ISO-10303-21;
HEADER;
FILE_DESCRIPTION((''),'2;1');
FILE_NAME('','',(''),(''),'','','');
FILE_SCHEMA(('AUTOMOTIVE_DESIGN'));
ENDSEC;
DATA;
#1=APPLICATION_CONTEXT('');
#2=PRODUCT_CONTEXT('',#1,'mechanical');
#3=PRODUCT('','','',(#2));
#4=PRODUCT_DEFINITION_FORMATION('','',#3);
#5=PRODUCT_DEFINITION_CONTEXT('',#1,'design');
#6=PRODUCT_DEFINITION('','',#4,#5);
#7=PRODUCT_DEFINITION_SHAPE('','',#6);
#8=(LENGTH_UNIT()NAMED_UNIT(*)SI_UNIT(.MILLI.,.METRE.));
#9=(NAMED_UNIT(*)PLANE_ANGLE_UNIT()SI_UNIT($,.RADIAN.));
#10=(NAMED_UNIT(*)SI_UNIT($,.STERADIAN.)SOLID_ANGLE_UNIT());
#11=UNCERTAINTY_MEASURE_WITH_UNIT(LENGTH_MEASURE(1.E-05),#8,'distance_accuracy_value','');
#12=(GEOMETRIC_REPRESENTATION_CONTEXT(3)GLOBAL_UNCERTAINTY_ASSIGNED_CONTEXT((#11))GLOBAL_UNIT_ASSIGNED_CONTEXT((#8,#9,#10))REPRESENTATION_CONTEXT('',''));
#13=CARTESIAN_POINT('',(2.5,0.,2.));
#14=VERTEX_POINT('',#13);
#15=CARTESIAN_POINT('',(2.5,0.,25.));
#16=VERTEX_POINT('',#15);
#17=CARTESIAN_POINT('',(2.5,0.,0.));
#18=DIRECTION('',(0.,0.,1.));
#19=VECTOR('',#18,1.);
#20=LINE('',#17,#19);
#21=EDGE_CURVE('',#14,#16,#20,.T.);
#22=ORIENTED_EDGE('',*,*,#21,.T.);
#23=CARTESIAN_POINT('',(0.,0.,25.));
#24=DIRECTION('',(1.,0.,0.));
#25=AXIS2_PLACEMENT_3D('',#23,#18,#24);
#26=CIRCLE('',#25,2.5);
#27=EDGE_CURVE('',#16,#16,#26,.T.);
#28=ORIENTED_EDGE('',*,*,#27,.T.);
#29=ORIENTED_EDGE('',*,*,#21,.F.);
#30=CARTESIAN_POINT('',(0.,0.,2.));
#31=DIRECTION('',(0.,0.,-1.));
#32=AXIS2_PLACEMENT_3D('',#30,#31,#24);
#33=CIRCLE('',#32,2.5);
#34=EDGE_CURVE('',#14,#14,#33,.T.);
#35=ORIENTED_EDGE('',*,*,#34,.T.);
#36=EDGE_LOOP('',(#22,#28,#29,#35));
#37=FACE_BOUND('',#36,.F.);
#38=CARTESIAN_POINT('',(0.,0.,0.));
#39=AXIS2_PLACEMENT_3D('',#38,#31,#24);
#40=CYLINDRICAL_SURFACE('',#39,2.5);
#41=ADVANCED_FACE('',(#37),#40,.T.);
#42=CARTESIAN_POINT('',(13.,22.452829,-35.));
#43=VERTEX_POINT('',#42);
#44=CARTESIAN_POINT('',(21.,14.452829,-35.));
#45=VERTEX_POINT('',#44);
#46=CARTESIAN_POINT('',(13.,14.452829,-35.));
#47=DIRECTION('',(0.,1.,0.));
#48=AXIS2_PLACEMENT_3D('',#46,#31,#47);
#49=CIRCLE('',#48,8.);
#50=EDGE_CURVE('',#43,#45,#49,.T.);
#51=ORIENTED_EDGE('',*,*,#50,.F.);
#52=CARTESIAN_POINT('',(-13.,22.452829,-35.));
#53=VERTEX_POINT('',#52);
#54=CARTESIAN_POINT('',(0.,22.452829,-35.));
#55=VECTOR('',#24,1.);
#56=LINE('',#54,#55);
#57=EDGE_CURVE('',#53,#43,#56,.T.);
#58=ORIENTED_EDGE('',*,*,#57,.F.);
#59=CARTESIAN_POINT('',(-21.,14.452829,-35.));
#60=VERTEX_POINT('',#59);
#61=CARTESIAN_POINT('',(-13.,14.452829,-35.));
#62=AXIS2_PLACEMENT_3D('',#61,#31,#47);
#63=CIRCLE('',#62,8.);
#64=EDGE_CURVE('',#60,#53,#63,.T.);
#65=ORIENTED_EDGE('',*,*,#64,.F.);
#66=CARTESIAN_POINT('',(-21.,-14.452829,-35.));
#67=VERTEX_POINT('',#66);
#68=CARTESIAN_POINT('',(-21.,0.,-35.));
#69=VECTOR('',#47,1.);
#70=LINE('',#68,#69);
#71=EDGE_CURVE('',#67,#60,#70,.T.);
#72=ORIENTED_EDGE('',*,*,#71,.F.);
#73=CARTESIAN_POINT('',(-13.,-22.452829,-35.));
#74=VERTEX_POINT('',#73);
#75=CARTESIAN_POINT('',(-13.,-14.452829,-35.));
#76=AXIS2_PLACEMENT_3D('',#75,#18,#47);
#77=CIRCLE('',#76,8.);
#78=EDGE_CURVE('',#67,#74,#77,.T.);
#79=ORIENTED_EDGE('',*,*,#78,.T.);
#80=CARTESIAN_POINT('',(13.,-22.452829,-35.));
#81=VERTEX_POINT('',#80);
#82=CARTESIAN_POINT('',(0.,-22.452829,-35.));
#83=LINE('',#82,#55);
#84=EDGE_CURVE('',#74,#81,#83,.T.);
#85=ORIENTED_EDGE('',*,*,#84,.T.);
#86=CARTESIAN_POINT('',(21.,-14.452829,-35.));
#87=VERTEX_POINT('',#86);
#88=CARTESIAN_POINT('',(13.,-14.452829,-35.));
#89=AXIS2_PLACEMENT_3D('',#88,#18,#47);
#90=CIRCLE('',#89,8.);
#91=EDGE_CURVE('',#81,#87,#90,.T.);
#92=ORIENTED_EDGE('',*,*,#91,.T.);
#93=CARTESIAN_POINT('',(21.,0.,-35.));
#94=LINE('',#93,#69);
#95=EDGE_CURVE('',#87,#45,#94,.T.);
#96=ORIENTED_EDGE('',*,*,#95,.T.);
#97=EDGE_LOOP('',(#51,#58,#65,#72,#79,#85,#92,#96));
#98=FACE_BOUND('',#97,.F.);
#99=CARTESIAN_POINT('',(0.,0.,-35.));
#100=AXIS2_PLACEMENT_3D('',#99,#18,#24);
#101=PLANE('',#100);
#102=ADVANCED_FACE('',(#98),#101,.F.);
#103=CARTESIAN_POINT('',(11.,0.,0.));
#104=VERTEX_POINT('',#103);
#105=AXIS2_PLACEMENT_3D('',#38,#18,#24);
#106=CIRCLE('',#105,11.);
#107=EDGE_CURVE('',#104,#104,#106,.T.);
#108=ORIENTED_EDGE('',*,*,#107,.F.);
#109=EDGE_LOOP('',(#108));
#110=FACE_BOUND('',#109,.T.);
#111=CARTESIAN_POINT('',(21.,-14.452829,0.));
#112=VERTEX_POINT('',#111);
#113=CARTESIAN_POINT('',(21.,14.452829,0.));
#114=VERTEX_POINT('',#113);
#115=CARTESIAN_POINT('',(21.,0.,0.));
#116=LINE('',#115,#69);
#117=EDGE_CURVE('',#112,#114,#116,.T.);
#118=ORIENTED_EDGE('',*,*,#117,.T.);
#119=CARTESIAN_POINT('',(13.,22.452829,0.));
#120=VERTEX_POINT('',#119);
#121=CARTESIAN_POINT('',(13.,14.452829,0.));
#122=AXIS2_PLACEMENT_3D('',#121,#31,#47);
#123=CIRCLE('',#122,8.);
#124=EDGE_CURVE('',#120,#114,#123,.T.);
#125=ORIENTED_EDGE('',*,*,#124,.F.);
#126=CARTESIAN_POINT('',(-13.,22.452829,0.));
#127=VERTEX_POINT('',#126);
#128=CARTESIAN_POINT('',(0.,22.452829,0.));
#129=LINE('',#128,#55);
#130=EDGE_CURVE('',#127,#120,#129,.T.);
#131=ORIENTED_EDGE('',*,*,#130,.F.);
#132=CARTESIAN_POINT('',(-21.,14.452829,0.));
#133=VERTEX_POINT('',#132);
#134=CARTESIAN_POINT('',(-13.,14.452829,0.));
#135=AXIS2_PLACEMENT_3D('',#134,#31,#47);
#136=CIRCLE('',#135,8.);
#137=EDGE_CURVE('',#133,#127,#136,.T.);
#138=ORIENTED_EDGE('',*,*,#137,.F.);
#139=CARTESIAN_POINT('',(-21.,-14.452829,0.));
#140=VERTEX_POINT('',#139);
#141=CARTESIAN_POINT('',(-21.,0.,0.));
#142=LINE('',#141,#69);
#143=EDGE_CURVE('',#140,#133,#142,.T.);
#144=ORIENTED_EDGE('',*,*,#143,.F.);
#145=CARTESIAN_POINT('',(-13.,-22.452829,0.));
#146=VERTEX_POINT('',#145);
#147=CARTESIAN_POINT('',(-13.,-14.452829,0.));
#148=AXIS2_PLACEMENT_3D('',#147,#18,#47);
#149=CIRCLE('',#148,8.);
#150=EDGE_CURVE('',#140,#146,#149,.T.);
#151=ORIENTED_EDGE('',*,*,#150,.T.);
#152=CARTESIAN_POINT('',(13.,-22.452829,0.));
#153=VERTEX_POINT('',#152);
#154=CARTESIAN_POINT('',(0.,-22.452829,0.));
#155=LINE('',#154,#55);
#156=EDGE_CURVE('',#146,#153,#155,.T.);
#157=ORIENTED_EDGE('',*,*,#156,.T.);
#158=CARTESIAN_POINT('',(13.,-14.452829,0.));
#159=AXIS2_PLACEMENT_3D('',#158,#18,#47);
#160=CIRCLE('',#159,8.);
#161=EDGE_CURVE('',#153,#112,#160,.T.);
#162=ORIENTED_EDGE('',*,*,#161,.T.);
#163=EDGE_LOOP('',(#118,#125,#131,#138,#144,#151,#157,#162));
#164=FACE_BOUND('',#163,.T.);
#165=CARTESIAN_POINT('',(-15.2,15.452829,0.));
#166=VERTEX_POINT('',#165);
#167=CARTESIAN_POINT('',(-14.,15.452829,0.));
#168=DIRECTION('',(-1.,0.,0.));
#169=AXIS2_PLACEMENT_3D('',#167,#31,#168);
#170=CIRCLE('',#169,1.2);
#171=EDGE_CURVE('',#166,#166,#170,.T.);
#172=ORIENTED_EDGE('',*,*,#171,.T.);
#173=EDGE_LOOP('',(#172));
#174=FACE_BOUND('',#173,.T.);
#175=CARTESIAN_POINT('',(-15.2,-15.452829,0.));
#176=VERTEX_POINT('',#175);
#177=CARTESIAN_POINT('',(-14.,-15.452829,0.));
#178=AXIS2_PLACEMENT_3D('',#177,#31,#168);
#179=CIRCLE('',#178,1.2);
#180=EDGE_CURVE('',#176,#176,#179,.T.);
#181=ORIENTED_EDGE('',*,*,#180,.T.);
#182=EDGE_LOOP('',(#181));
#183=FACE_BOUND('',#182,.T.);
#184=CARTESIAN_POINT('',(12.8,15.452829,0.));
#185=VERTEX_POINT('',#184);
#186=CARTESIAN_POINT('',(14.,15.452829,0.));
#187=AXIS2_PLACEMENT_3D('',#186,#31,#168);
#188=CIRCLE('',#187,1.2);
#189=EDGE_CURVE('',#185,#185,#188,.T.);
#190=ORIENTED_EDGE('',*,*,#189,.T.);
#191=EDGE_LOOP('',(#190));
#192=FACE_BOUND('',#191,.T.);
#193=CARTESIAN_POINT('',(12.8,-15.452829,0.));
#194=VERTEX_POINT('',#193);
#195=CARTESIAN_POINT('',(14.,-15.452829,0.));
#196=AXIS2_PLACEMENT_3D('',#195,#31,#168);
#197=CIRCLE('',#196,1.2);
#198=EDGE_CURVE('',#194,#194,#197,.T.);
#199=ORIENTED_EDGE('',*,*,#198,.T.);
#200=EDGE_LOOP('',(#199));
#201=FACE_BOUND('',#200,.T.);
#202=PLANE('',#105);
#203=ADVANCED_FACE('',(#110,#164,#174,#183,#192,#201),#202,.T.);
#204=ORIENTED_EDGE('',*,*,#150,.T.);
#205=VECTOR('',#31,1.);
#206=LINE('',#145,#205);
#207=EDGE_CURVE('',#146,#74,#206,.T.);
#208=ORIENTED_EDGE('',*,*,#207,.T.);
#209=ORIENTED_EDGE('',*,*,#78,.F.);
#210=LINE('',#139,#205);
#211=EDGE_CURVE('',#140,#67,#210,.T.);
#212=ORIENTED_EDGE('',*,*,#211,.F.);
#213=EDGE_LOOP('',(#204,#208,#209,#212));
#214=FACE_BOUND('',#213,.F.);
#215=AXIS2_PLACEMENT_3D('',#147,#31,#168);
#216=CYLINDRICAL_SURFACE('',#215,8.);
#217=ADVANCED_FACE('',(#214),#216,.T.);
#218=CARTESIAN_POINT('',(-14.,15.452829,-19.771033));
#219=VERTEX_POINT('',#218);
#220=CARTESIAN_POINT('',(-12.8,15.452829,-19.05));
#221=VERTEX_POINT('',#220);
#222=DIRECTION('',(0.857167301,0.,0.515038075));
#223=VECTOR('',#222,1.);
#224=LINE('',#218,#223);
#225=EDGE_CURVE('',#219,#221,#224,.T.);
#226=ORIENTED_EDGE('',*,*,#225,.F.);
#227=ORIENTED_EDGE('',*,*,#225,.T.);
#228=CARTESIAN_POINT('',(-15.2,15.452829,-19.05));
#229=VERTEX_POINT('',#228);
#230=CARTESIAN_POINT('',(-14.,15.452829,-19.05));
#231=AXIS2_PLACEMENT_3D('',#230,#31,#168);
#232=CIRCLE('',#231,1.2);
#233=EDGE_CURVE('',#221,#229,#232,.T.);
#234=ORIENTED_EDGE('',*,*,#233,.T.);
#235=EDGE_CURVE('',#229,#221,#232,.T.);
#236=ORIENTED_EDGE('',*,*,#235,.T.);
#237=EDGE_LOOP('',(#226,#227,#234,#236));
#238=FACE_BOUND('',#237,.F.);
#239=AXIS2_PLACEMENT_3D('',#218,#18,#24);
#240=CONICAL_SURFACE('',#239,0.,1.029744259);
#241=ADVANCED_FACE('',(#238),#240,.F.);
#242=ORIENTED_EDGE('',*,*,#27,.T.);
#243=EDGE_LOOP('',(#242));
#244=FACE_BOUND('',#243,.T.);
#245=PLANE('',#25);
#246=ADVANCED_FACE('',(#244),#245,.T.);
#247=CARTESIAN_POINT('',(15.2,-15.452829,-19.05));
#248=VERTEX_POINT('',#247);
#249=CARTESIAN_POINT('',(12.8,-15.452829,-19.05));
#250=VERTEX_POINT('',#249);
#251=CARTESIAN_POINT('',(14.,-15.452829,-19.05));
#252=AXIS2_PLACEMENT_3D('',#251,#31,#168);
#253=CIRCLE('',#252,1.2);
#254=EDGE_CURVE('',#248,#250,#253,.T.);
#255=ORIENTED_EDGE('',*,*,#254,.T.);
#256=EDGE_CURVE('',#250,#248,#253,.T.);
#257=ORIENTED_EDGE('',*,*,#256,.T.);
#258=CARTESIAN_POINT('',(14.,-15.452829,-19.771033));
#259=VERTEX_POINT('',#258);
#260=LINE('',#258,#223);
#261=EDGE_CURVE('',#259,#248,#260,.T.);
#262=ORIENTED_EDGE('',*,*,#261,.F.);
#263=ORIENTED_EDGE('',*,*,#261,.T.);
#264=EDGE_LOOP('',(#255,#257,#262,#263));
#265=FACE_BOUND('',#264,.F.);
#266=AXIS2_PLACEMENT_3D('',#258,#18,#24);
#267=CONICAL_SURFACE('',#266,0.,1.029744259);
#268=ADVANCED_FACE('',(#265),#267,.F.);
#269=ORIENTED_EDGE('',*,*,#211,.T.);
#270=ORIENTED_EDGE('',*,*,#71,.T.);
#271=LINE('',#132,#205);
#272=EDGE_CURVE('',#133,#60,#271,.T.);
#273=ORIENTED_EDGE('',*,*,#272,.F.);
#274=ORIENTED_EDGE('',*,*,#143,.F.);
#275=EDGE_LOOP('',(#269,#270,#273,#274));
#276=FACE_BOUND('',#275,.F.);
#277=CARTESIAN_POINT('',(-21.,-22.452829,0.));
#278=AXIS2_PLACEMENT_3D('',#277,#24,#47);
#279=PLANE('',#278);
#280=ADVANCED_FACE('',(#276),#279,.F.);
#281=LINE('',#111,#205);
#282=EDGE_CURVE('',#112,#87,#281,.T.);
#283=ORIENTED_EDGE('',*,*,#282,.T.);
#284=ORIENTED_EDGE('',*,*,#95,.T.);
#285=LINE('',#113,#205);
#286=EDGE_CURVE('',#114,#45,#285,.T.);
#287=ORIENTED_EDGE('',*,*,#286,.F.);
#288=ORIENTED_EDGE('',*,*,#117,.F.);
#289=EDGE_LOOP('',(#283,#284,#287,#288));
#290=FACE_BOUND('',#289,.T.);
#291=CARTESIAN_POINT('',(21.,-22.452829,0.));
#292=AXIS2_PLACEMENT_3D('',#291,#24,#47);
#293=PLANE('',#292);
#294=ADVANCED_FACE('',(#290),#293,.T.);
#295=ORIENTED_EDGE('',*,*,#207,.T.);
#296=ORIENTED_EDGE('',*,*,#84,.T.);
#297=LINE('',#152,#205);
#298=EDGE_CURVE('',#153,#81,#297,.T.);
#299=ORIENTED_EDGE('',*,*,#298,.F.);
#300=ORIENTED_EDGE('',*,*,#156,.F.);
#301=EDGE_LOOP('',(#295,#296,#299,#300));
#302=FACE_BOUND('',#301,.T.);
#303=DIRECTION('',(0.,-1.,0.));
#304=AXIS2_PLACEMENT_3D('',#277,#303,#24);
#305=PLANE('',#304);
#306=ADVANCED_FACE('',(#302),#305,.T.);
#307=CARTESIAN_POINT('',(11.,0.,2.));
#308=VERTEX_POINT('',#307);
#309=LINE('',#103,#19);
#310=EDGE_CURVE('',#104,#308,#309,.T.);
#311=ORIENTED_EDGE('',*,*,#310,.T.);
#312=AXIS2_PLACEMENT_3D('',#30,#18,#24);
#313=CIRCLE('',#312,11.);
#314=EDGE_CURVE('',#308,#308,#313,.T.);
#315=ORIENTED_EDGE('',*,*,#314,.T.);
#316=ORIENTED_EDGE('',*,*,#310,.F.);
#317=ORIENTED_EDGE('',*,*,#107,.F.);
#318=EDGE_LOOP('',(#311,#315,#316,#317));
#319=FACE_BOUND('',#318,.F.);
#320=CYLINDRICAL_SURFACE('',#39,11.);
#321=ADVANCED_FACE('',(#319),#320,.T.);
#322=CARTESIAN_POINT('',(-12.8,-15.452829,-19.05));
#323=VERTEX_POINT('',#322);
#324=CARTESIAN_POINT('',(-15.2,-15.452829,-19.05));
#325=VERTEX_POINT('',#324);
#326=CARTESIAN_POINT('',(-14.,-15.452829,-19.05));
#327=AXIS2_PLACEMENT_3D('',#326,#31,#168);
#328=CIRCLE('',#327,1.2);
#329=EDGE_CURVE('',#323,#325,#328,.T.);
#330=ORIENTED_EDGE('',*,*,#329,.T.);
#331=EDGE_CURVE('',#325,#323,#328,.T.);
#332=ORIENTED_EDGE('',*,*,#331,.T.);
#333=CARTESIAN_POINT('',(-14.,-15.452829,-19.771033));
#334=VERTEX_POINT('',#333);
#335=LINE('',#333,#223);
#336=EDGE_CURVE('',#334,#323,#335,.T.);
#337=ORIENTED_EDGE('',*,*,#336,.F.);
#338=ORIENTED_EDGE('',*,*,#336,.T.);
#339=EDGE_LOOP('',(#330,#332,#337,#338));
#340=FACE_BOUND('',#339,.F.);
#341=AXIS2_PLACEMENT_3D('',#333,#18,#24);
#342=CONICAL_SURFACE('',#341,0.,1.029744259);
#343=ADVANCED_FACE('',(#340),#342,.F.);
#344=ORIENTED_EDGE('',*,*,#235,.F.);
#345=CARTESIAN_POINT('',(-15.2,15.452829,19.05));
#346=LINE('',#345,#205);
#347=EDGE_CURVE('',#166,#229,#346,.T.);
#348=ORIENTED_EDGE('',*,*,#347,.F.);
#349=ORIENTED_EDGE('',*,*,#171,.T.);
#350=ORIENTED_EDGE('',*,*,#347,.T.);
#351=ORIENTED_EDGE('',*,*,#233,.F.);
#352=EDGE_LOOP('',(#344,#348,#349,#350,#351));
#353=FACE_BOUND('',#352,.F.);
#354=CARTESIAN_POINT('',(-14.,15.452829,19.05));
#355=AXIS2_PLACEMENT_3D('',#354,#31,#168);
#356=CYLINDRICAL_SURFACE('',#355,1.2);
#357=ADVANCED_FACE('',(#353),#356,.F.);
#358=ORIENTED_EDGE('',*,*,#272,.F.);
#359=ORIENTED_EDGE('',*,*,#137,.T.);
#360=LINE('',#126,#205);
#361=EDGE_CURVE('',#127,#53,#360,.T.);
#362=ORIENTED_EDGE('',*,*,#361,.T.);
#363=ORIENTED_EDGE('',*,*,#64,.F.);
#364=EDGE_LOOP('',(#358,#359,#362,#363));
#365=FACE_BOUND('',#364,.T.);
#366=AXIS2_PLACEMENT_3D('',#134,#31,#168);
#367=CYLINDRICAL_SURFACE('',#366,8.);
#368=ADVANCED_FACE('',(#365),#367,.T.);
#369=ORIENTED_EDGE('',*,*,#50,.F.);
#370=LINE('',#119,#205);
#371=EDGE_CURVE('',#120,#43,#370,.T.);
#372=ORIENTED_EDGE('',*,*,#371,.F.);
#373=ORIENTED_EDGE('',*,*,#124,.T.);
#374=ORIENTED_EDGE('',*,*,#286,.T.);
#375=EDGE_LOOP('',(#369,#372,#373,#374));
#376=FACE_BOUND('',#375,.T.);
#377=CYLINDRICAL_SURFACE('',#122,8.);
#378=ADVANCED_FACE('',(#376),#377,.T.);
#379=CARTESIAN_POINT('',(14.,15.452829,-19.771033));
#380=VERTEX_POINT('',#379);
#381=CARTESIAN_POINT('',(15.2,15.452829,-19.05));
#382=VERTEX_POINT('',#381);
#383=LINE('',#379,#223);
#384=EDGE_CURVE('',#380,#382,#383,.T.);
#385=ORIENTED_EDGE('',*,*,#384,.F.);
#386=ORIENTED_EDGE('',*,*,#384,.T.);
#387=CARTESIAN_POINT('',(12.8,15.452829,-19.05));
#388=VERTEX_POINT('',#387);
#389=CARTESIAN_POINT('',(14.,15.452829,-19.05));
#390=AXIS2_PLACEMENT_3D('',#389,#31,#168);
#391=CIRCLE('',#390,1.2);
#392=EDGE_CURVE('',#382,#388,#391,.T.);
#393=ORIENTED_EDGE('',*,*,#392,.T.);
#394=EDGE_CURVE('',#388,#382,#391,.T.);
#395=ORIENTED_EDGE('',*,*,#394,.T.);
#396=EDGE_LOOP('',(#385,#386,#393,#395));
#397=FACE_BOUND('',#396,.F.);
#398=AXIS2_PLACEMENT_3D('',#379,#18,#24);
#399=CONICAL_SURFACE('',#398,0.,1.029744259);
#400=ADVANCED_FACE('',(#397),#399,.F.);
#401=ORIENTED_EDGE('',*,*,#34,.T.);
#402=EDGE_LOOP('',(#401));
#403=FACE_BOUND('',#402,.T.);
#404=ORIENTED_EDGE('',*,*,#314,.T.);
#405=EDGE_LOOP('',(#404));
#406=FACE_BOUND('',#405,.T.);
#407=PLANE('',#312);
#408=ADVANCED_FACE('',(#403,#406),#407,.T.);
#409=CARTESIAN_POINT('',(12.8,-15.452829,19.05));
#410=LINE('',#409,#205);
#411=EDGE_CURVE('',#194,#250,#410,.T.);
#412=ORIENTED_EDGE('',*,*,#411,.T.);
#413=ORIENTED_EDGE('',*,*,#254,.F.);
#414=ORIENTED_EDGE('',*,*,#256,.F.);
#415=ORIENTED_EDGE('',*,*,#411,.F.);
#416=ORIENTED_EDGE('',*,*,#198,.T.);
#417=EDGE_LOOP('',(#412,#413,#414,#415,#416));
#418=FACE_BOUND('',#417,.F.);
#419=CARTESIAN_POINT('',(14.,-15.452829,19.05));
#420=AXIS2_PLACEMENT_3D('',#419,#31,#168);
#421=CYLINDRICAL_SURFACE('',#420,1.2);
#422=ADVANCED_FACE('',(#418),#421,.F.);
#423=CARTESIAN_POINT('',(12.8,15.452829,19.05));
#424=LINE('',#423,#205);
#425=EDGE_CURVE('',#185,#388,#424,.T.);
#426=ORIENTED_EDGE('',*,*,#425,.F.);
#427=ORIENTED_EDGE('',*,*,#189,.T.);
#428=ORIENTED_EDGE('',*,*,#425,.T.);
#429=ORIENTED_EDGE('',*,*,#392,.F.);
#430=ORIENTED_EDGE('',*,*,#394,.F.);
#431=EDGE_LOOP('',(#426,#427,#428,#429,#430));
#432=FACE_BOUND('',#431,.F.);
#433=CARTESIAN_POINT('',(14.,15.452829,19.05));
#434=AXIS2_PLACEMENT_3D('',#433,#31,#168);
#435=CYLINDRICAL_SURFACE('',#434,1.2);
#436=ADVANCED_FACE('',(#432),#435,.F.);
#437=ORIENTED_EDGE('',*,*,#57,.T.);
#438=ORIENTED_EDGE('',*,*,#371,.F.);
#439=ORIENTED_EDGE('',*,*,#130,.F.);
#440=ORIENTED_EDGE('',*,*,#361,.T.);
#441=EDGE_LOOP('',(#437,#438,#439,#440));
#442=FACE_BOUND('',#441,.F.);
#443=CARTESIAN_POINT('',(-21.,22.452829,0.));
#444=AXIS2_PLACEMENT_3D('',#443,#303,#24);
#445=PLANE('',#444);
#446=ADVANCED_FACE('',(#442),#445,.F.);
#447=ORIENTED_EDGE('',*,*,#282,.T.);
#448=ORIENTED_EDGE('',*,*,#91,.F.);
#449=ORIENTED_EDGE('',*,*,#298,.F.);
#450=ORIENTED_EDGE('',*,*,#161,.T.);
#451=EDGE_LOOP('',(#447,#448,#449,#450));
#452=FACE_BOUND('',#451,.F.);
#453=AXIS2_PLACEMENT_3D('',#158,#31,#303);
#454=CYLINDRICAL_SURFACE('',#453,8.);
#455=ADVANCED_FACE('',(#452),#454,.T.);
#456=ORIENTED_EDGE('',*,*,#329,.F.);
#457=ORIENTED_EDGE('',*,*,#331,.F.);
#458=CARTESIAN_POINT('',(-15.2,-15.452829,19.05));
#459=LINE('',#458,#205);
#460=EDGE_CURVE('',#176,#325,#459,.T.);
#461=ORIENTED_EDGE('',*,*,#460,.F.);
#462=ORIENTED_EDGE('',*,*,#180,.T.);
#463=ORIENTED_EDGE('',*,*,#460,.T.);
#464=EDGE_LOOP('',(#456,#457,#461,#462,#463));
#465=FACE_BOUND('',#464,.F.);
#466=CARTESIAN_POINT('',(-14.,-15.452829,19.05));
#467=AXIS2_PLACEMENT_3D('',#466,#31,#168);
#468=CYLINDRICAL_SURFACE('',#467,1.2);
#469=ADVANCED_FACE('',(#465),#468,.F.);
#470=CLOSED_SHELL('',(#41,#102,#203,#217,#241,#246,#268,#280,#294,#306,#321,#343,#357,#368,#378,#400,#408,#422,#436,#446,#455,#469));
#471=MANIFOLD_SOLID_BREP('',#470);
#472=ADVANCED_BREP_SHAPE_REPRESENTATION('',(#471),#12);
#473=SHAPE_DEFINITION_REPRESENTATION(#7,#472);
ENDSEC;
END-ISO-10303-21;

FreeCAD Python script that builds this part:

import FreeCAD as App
import Part
import Sketcher

V = App.Vector


def edges_at(feature, points):
    """Names of the edges that pass closest to the given points."""
    edges = feature.Shape.Edges
    near = lambda p: min(range(len(edges)), key=lambda i: edges[i].distToShape(Part.Vertex(*p))[0])
    return sorted({f"Edge{near(p) + 1}" for p in points})


def add_polygon(sketch, points):
    """Adds a closed chain of lines whose ends are joined by coincident constraints."""
    first, n = sketch.GeometryCount, len(points)
    for a, b in zip(points, points[1:] + points[:1]):
        sketch.addGeometry(Part.LineSegment(App.Vector(*a, 0), App.Vector(*b, 0)), False)
    for i in range(n):
        sketch.addConstraint(Sketcher.Constraint("Coincident", first + i, 2, first + (i + 1) % n, 1))

doc = App.newDocument("Part")
body = doc.addObject("PartDesign::Body", "Body")

sketch1 = body.newObject("Sketcher::SketchObject", "Sketch")
sketch1.AttachmentSupport = (doc.getObject("XY_Plane"), [""])
sketch1.MapMode = "FlatFace"
add_polygon(sketch1, [(-21, 22.452829), (-21, -22.452829), (21, -22.452829), (21, 22.452829)])
sketch1.addConstraint(Sketcher.Constraint("Vertical", 0))
sketch1.addConstraint(Sketcher.Constraint("Horizontal", 1))
sketch1.addConstraint(Sketcher.Constraint("Vertical", 2))
sketch1.addConstraint(Sketcher.Constraint("Horizontal", 3))
sketch1.addConstraint(Sketcher.Constraint("Symmetric", 0, 2, 2, 2, -1, 1))
sketch1.addConstraint(Sketcher.Constraint("DistanceX", 1, 1, 1, 2, 42.0))
sketch1.addConstraint(Sketcher.Constraint("DistanceY", 0, 2, 0, 1, 44.905658))
pad1 = body.newObject("PartDesign::Pad", "Pad")
pad1.Profile = sketch1
pad1.Length = 35
pad1.Reversed = True

sketch2 = body.newObject("Sketcher::SketchObject", "Sketch001")
sketch2.AttachmentSupport = (doc.getObject("XY_Plane"), [""])
sketch2.MapMode = "FlatFace"
sketch2.addGeometry(Part.Circle(V(0, 0, 0), V(0, 0, 1), 11), False)
sketch2.addConstraint(Sketcher.Constraint("Coincident", 0, 3, -1, 1))
sketch2.addConstraint(Sketcher.Constraint("Diameter", 0, 22.0))
pad2 = body.newObject("PartDesign::Pad", "Pad001")
pad2.Profile = sketch2
pad2.Length = 2

sketch3 = body.newObject("Sketcher::SketchObject", "Sketch002")
sketch3.AttachmentSupport = (doc.getObject("XY_Plane"), [""])
sketch3.MapMode = "FlatFace"
sketch3.addGeometry(Part.Circle(V(0, 0, 0), V(0, 0, 1), 2.5), False)
sketch3.addConstraint(Sketcher.Constraint("Coincident", 0, 3, -1, 1))
sketch3.addConstraint(Sketcher.Constraint("Diameter", 0, 5.0))
pad3 = body.newObject("PartDesign::Pad", "Pad002")
pad3.Profile = sketch3
pad3.Length = 25

sketch4 = body.newObject("Sketcher::SketchObject", "Sketch003")
sketch4.AttachmentSupport = (doc.getObject("XY_Plane"), [""])
sketch4.MapMode = "FlatFace"
sketch4.addGeometry(Part.Circle(V(-14, 15.452829, 0), V(0, 0, 1), 1.2), False)
sketch4.addGeometry(Part.Circle(V(14, 15.452829, 0), V(0, 0, 1), 1.2), False)
sketch4.addGeometry(Part.Circle(V(14, -15.452829, 0), V(0, 0, 1), 1.2), False)
sketch4.addGeometry(Part.Circle(V(-14, -15.452829, 0), V(0, 0, 1), 1.2), False)
sketch4.addConstraint(Sketcher.Constraint("Equal", 0, 1))
sketch4.addConstraint(Sketcher.Constraint("Equal", 1, 2))
sketch4.addConstraint(Sketcher.Constraint("Equal", 2, 3))
sketch4.addConstraint(Sketcher.Constraint("Symmetric", 0, 3, 2, 3, -1, 1))
sketch4.addConstraint(Sketcher.Constraint("Symmetric", 1, 3, 3, 3, -1, 1))
sketch4.addConstraint(Sketcher.Constraint("Symmetric", 0, 3, 1, 3, -2))
sketch4.addConstraint(Sketcher.Constraint("Diameter", 0, 2.4))
sketch4.addConstraint(Sketcher.Constraint("DistanceX", 0, 3, -1, 1, 14.0))
sketch4.addConstraint(Sketcher.Constraint("DistanceY", -1, 1, 0, 3, 15.452829))
doc.recompute()
hole = body.newObject("PartDesign::Hole", "Hole")
hole.Profile = sketch4
hole.ThreadType = "None"
hole.Diameter = 2.4
hole.DepthType = "Dimension"
hole.Depth = 19.05
hole.DrillPoint = "Angled"
hole.DrillPointAngle = 118
doc.recompute()

fillet = body.newObject("PartDesign::Fillet", "Fillet")
fillet.Base = (hole, edges_at(hole, [
    (21, 22.453, -17.5),
    (21, -22.453, -17.5),
    (-21, 22.453, -17.5),
    (-21, -22.453, -17.5),
]))
fillet.Radius = 8

doc.recompute()
